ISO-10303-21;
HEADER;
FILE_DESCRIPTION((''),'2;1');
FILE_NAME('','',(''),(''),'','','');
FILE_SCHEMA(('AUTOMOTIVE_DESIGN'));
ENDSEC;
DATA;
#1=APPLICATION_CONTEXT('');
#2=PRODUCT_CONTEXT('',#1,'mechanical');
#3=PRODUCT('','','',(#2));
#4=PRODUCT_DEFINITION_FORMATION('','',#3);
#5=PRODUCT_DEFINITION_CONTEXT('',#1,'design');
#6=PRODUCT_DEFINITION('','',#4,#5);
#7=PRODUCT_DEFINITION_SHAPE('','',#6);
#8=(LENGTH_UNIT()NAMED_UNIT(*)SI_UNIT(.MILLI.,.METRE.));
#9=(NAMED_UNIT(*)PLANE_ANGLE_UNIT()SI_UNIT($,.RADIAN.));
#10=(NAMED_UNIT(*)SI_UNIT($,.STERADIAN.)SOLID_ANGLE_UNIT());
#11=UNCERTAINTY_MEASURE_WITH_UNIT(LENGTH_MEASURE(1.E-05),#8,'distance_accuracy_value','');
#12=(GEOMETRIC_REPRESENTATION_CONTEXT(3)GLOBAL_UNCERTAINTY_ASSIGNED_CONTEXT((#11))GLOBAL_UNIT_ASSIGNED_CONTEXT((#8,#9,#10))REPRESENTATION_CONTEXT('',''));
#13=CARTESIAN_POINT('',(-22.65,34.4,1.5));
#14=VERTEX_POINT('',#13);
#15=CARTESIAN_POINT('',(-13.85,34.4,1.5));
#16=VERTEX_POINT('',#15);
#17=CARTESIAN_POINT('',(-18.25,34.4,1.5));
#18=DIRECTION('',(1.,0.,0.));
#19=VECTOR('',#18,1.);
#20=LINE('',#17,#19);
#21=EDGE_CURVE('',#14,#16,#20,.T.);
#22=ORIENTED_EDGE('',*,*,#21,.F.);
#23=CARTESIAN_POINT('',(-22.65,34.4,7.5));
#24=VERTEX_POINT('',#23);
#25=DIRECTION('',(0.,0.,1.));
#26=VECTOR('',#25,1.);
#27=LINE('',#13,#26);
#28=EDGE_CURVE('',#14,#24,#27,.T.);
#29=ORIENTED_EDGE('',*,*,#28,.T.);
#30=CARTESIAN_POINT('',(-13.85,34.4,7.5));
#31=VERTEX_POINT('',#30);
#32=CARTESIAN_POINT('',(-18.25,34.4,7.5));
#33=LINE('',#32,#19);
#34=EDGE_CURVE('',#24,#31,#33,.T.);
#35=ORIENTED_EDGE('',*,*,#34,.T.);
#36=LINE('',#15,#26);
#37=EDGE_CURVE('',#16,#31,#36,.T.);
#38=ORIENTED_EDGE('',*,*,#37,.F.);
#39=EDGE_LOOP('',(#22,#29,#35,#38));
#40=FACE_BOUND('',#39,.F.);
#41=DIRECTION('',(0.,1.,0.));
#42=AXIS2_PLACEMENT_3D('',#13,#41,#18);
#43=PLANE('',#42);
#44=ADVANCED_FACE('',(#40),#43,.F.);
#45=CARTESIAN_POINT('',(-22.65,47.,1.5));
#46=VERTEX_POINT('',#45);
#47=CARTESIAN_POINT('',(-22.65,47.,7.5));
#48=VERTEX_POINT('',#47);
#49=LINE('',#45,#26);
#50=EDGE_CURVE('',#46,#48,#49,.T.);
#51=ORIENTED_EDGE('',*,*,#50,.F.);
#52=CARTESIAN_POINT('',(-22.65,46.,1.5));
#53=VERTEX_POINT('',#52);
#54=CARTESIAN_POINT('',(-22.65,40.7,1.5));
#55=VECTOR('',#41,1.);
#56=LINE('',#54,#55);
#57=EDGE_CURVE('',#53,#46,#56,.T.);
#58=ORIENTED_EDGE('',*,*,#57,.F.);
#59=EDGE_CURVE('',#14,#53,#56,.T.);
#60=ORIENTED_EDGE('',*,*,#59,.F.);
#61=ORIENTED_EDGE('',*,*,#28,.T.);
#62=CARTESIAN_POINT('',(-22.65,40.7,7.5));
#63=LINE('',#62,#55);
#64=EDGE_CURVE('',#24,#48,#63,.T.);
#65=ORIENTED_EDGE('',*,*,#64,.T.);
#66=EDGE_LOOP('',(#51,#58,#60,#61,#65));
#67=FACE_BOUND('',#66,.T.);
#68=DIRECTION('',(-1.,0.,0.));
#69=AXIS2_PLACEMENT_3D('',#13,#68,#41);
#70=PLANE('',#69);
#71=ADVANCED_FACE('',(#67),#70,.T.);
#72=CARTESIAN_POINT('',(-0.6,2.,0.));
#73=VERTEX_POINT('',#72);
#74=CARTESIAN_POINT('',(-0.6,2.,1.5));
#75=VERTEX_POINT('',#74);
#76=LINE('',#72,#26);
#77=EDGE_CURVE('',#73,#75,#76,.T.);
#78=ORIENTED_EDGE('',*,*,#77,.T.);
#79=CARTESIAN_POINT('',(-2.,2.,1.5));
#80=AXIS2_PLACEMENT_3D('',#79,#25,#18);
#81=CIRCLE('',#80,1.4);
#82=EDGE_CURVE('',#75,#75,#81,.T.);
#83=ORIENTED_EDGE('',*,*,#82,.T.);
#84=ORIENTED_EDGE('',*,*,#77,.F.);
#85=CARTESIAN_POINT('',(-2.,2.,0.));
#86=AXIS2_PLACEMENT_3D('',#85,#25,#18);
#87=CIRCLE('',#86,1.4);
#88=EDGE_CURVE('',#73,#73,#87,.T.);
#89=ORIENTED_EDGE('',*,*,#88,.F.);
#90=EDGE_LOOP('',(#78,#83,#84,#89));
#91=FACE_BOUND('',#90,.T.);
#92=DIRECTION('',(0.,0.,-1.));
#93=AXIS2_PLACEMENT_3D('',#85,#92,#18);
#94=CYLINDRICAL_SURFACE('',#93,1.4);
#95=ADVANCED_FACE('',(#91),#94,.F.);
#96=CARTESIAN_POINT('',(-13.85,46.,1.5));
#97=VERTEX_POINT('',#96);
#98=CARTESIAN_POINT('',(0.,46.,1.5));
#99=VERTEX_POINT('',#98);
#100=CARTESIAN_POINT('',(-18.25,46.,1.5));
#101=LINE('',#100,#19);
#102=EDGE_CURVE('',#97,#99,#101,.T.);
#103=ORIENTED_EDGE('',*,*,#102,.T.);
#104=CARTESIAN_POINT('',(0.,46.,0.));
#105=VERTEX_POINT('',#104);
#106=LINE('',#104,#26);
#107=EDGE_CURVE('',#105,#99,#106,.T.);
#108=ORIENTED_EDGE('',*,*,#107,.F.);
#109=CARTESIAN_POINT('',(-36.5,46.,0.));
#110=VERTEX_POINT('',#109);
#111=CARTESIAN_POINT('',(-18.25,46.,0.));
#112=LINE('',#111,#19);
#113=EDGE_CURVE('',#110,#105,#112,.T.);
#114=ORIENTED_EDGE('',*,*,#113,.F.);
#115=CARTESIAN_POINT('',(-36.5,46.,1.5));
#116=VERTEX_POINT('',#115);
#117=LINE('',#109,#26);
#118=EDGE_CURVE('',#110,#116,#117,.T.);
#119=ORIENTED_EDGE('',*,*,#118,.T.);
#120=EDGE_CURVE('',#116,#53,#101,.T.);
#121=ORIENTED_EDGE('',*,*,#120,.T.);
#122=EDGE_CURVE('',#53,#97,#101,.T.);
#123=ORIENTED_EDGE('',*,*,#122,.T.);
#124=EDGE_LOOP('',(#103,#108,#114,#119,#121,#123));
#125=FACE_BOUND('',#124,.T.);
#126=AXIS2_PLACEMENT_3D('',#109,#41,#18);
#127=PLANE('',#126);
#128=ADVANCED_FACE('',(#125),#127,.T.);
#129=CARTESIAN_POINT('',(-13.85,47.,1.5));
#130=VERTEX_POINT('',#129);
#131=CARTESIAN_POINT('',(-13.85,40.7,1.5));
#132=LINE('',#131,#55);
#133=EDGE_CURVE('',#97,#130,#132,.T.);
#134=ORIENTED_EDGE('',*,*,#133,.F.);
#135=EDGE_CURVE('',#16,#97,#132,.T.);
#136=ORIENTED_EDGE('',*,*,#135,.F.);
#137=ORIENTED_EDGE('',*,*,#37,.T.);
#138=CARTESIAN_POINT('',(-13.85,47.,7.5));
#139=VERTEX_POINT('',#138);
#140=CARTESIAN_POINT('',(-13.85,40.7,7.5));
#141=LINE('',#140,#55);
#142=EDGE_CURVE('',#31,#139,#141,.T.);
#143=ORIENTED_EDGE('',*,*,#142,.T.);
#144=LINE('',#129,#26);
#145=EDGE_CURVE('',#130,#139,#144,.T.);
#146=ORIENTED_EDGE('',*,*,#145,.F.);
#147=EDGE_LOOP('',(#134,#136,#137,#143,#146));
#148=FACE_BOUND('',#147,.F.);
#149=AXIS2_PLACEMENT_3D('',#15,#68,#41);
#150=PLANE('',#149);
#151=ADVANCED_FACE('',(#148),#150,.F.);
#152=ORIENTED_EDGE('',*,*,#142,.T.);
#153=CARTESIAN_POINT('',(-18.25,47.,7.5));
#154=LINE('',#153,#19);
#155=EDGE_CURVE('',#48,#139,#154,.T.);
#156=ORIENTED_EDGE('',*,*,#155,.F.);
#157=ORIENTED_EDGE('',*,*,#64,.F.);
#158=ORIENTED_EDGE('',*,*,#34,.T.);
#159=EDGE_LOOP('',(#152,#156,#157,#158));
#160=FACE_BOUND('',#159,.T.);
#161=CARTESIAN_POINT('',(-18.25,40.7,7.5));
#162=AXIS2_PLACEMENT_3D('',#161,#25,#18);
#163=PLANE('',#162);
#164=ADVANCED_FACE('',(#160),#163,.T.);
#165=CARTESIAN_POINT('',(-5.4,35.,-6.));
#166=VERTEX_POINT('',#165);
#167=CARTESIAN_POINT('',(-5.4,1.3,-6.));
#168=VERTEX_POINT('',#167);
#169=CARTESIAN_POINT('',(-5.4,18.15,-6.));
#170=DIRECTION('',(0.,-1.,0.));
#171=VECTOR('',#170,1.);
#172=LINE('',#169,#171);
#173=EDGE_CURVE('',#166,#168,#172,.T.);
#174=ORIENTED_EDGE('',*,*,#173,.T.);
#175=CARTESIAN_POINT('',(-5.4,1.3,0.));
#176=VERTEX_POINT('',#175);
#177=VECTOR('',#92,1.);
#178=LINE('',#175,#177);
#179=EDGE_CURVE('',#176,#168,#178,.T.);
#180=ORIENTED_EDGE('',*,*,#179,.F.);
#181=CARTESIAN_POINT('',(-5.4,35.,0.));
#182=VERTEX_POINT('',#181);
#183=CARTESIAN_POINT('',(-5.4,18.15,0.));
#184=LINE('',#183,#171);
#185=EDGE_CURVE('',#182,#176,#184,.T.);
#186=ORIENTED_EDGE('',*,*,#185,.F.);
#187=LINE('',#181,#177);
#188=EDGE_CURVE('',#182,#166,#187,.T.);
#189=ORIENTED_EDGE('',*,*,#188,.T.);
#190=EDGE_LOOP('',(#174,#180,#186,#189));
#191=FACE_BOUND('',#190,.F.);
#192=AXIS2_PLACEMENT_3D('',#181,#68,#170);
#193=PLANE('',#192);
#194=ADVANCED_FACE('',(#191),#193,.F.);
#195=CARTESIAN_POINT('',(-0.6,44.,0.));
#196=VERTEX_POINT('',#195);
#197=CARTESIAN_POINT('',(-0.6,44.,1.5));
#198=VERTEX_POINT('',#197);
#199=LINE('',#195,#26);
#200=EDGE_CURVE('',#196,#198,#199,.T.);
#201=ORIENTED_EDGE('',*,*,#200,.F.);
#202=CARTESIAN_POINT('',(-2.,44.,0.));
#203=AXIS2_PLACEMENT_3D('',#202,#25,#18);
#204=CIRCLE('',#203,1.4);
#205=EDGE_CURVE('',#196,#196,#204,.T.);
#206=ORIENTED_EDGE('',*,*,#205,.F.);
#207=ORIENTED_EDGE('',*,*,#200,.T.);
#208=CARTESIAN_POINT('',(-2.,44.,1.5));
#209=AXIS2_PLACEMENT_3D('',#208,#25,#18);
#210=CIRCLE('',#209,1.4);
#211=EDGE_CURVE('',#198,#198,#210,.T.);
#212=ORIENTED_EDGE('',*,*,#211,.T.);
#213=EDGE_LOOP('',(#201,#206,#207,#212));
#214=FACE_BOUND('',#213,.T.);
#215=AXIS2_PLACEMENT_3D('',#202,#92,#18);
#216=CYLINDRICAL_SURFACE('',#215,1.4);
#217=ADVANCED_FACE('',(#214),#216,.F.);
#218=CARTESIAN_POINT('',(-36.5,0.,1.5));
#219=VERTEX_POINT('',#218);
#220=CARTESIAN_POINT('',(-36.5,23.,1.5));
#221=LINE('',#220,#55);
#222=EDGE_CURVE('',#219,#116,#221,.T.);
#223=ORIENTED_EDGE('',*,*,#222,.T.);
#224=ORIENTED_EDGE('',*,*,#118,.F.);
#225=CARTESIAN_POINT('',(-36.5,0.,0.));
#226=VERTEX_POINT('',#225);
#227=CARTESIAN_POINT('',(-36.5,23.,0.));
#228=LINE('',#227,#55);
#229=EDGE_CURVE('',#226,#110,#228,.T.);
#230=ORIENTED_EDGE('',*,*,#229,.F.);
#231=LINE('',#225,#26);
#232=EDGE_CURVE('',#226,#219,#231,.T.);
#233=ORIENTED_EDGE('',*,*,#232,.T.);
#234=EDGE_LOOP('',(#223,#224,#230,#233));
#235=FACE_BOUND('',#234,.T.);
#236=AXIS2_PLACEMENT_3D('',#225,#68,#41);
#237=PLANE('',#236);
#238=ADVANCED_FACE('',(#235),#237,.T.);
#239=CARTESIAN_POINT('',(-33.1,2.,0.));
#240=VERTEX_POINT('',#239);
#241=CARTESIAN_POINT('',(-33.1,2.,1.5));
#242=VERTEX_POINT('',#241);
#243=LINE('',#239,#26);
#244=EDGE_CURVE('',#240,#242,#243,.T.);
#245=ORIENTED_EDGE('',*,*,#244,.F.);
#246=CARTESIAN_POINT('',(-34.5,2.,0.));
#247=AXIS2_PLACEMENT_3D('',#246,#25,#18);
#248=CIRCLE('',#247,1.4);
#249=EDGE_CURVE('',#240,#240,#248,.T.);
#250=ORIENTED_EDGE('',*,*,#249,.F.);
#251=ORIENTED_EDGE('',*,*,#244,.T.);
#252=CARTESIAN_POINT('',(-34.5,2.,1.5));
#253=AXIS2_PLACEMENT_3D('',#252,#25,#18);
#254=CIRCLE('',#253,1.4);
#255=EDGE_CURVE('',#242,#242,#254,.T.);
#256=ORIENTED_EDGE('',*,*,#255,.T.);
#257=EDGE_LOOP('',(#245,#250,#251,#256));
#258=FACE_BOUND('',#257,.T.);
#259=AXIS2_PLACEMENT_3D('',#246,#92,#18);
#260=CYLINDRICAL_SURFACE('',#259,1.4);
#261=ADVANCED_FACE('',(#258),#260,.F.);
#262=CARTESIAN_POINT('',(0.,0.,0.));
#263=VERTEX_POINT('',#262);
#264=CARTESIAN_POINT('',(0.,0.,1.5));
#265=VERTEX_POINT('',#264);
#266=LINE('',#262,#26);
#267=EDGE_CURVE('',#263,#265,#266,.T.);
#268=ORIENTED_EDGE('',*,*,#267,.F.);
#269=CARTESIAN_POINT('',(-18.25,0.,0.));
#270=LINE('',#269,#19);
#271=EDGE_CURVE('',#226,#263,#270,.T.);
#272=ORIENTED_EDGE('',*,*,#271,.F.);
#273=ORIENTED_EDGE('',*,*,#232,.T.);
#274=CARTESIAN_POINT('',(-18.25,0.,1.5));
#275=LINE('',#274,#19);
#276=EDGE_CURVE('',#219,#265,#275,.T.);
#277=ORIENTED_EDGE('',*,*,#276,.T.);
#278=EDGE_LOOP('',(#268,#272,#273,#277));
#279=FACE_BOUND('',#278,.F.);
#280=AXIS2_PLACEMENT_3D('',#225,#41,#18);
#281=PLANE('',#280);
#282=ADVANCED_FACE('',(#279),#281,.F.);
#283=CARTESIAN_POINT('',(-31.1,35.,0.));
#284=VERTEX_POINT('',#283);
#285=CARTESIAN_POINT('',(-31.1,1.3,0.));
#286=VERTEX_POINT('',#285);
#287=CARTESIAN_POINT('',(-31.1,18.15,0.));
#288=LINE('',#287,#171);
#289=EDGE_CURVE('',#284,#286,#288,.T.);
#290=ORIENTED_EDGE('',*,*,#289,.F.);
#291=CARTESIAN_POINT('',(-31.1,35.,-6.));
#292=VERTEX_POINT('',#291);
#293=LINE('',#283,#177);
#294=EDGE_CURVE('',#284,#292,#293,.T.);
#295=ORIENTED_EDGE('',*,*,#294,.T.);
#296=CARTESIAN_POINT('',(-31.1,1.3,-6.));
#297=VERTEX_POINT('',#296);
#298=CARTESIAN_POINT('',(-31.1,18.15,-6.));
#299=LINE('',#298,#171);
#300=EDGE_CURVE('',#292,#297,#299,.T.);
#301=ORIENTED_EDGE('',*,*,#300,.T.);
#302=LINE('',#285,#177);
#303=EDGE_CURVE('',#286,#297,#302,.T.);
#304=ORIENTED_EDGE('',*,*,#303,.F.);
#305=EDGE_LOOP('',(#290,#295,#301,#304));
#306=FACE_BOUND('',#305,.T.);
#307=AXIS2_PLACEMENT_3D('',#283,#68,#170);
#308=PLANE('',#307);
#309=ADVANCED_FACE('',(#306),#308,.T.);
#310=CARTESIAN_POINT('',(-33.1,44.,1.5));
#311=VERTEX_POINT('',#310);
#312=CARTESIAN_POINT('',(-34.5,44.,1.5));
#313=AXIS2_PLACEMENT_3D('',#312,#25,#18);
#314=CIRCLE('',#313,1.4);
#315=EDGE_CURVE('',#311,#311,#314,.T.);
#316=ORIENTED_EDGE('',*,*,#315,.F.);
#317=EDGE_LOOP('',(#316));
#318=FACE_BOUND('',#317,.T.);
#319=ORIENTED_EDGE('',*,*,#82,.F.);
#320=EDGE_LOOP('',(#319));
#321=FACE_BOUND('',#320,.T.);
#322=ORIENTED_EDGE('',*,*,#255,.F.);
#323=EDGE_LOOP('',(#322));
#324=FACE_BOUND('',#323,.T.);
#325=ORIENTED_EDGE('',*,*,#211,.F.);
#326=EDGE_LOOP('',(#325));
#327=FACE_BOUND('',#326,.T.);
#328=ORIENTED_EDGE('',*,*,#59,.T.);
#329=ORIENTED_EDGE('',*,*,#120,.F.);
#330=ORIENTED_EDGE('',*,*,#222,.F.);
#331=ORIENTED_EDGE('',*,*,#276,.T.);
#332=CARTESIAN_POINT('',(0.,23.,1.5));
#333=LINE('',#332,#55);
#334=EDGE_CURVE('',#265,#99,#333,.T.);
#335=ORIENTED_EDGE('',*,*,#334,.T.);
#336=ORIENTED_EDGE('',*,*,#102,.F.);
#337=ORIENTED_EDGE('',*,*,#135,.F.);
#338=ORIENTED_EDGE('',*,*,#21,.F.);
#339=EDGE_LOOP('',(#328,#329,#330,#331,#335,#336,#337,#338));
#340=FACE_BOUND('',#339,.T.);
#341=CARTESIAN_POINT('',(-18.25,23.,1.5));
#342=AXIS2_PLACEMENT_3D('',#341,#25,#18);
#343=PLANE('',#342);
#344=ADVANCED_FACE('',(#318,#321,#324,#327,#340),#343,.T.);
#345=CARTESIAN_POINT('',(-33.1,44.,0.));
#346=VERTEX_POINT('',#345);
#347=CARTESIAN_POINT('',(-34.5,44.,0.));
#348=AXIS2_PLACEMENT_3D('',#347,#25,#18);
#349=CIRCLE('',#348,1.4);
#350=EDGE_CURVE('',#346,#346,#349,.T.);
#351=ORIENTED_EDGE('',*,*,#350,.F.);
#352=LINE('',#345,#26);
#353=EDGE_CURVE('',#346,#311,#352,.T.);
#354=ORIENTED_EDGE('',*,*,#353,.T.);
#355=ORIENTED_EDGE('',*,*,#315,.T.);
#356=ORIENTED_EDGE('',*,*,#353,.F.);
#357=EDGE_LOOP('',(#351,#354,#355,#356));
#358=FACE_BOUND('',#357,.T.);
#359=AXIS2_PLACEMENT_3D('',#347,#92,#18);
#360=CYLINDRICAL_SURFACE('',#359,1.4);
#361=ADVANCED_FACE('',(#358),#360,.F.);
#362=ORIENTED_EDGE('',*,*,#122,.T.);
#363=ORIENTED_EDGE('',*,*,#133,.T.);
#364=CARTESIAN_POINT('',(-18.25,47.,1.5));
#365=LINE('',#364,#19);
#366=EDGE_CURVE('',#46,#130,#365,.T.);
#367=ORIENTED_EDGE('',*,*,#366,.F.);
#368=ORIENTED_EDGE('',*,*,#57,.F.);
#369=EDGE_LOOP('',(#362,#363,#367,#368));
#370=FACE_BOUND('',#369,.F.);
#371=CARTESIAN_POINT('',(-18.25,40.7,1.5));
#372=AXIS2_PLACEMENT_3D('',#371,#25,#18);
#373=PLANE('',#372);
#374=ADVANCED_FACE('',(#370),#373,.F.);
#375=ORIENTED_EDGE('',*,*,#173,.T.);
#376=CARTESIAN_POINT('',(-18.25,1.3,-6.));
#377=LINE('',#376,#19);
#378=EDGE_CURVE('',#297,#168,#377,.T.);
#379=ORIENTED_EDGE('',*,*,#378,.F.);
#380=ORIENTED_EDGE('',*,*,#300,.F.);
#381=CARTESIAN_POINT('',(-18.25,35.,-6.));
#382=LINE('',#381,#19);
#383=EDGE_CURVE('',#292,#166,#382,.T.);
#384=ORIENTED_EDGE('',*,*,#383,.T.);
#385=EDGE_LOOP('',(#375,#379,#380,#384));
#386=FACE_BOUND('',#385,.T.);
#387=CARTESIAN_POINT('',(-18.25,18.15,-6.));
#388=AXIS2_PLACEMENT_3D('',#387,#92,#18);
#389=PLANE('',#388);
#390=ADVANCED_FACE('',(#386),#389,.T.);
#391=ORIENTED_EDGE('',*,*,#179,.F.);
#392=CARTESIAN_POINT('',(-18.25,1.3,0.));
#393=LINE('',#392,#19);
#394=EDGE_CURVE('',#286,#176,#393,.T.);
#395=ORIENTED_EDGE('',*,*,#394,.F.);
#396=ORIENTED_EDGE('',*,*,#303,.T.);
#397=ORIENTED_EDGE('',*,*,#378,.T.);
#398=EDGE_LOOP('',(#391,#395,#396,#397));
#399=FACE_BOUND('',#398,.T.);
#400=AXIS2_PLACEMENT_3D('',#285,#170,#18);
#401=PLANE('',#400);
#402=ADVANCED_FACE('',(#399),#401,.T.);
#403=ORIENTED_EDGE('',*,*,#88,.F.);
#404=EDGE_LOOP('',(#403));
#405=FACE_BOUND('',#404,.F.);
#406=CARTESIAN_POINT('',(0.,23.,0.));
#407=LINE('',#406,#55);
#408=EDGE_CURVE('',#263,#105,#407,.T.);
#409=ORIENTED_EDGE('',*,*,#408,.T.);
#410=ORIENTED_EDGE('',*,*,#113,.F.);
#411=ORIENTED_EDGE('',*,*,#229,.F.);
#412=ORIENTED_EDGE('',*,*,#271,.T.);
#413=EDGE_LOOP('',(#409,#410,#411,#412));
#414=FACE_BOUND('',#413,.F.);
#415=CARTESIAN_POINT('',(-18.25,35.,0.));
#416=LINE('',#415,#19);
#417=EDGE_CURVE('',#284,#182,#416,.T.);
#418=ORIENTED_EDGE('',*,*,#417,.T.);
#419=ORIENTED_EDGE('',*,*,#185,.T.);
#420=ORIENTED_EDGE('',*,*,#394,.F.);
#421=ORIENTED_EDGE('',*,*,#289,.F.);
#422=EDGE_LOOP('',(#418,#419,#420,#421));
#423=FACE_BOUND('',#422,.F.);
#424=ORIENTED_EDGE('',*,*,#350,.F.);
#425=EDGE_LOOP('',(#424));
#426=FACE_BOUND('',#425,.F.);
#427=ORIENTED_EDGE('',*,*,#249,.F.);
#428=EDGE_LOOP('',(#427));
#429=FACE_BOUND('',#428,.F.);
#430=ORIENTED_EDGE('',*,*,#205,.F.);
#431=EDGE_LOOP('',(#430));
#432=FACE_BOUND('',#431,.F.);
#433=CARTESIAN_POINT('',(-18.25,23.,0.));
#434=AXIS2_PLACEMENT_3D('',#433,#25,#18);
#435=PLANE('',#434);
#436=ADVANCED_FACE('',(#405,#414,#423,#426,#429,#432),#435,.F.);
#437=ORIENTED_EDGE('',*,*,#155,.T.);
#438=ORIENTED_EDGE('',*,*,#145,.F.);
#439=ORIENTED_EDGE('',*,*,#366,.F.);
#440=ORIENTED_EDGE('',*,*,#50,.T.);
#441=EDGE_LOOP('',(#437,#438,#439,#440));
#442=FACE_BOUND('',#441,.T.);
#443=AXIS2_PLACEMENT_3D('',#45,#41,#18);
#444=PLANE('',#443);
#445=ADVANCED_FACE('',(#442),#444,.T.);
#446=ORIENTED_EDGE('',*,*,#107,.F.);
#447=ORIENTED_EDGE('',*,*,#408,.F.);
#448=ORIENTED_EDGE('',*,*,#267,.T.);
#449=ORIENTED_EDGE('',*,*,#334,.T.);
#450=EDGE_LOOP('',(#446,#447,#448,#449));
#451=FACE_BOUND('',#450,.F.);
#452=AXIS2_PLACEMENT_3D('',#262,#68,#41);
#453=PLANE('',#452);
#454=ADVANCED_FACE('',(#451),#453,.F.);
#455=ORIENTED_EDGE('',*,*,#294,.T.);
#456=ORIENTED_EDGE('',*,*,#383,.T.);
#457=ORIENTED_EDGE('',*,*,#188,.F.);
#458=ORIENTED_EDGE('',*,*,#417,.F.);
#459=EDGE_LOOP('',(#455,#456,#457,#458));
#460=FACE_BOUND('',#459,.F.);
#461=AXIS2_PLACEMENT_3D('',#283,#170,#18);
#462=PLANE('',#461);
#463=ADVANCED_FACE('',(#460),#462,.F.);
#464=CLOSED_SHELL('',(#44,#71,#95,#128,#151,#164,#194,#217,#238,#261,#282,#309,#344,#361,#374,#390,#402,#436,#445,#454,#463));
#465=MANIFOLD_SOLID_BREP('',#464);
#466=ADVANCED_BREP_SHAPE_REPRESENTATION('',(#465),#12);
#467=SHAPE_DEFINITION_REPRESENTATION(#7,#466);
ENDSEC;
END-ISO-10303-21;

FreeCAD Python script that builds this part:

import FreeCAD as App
import Part
import Sketcher
from FreeCAD import Vector
Q = App.Units.Quantity

doc = App.newDocument("Part")
body = doc.addObject("PartDesign::Body", "Body")

sketch1 = doc.addObject("Sketcher::SketchObject", "Sketch")
body.addObject(sketch1)
sketch1.AttachmentSupport = (doc.XY_Plane, [""])
sketch1.MapMode = "FlatFace"
sketch1.addGeometry([
    Part.LineSegment(Vector(-36.5, 46, 0), Vector(-36.5, 0, 0)),
    Part.LineSegment(Vector(-36.5, 0, 0), Vector(0, 0, 0)),
    Part.LineSegment(Vector(0, 0, 0), Vector(0, 46, 0)),
    Part.LineSegment(Vector(0, 46, 0), Vector(-36.5, 46, 0)),
    Part.Circle(Vector(-34.5, 2, 0), Vector(0, 0, 1), 1.4),
    Part.Circle(Vector(-2, 2, 0), Vector(0, 0, 1), 1.4),
    Part.Circle(Vector(-34.5, 44, 0), Vector(0, 0, 1), 1.4),
    Part.Circle(Vector(-2, 44, 0), Vector(0, 0, 1), 1.4),
], False)
sketch1.addConstraint([
    Sketcher.Constraint("Coincident", 0, 2, 1, 1),
    Sketcher.Constraint("Coincident", 1, 2, 2, 1),
    Sketcher.Constraint("Coincident", 2, 2, 3, 1),
    Sketcher.Constraint("Coincident", 3, 2, 0, 1),
    Sketcher.Constraint("Vertical", 0),
    Sketcher.Constraint("Horizontal", 1),
    Sketcher.Constraint("Vertical", 2),
    Sketcher.Constraint("Horizontal", 3),
    Sketcher.Constraint("Coincident", 1, 2, -1, 1),
    Sketcher.Constraint("Equal", 4, 5),
    Sketcher.Constraint("Equal", 5, 6),
    Sketcher.Constraint("Equal", 6, 7),
    Sketcher.Constraint("Horizontal", 4, 3, 5, 3),
    Sketcher.Constraint("Horizontal", 6, 3, 7, 3),
    Sketcher.Constraint("Vertical", 4, 3, 6, 3),
    Sketcher.Constraint("Vertical", 5, 3, 7, 3),
    Sketcher.Constraint("Diameter", 4, Q("2.8 mm")),
    Sketcher.Constraint("DistanceY", 0, 2, 0, 1, Q("46 mm")),
    Sketcher.Constraint("DistanceX", 1, 1, 1, 2, Q("36.5 mm")),
    Sketcher.Constraint("DistanceY", -1, 1, 4, 3, Q("2 mm")),
    Sketcher.Constraint("DistanceX", 5, 3, -1, 1, Q("2 mm")),
    Sketcher.Constraint("DistanceY", -1, 1, 6, 3, Q("44 mm")),
    Sketcher.Constraint("DistanceX", 0, 2, 4, 3, Q("2 mm")),
])
pad1 = doc.addObject("PartDesign::Pad", "Pad")
body.addObject(pad1)
pad1.Profile = sketch1
pad1.Length = 1.5

sketch2 = doc.addObject("Sketcher::SketchObject", "Sketch001")
body.addObject(sketch2)
sketch2.AttachmentSupport = (doc.XY_Plane, [""])
sketch2.MapMode = "FlatFace"
sketch2.AttachmentOffset = App.Placement(Vector(0, 0, 1.5), App.Rotation())
sketch2.addGeometry([
    Part.LineSegment(Vector(-22.65, 47, 0), Vector(-22.65, 34.4, 0)),
    Part.LineSegment(Vector(-22.65, 34.4, 0), Vector(-13.85, 34.4, 0)),
    Part.LineSegment(Vector(-13.85, 34.4, 0), Vector(-13.85, 47, 0)),
    Part.LineSegment(Vector(-13.85, 47, 0), Vector(-22.65, 47, 0)),
], False)
sketch2.addConstraint([
    Sketcher.Constraint("Coincident", 0, 2, 1, 1),
    Sketcher.Constraint("Coincident", 1, 2, 2, 1),
    Sketcher.Constraint("Coincident", 2, 2, 3, 1),
    Sketcher.Constraint("Coincident", 3, 2, 0, 1),
    Sketcher.Constraint("Vertical", 0),
    Sketcher.Constraint("Horizontal", 1),
    Sketcher.Constraint("Vertical", 2),
    Sketcher.Constraint("Horizontal", 3),
    Sketcher.Constraint("DistanceX", 1, 1, 1, 2, Q("8.8 mm")),
    Sketcher.Constraint("DistanceY", 0, 2, 0, 1, Q("12.6 mm")),
    Sketcher.Constraint("DistanceY", -1, 1, 2, 2, Q("47 mm")),
    Sketcher.Constraint("DistanceX", 0, 2, -1, 1, Q("22.65 mm")),
])
pad2 = doc.addObject("PartDesign::Pad", "Pad001")
body.addObject(pad2)
pad2.Profile = sketch2
pad2.Length = 6

sketch3 = doc.addObject("Sketcher::SketchObject", "Sketch002")
body.addObject(sketch3)
sketch3.AttachmentSupport = (doc.XY_Plane, [""])
sketch3.MapMode = "FlatFace"
sketch3.addGeometry([
    Part.LineSegment(Vector(-31.1, 1.3, 0), Vector(-31.1, 35, 0)),
    Part.LineSegment(Vector(-31.1, 35, 0), Vector(-5.4, 35, 0)),
    Part.LineSegment(Vector(-5.4, 35, 0), Vector(-5.4, 1.3, 0)),
    Part.LineSegment(Vector(-5.4, 1.3, 0), Vector(-31.1, 1.3, 0)),
], False)
sketch3.addConstraint([
    Sketcher.Constraint("Coincident", 0, 2, 1, 1),
    Sketcher.Constraint("Coincident", 1, 2, 2, 1),
    Sketcher.Constraint("Coincident", 2, 2, 3, 1),
    Sketcher.Constraint("Coincident", 3, 2, 0, 1),
    Sketcher.Constraint("Vertical", 0),
    Sketcher.Constraint("Horizontal", 1),
    Sketcher.Constraint("Vertical", 2),
    Sketcher.Constraint("Horizontal", 3),
    Sketcher.Constraint("DistanceX", 1, 1, 1, 2, Q("25.7 mm")),
    Sketcher.Constraint("DistanceY", 0, 1, 0, 2, Q("33.7 mm")),
    Sketcher.Constraint("DistanceY", -1, 1, 0, 2, Q("35 mm")),
    Sketcher.Constraint("DistanceX", 0, 2, -1, 1, Q("31.1 mm")),
])
pad3 = doc.addObject("PartDesign::Pad", "Pad002")
body.addObject(pad3)
pad3.Profile = sketch3
pad3.Length = 6
pad3.Reversed = True

doc.recompute()
